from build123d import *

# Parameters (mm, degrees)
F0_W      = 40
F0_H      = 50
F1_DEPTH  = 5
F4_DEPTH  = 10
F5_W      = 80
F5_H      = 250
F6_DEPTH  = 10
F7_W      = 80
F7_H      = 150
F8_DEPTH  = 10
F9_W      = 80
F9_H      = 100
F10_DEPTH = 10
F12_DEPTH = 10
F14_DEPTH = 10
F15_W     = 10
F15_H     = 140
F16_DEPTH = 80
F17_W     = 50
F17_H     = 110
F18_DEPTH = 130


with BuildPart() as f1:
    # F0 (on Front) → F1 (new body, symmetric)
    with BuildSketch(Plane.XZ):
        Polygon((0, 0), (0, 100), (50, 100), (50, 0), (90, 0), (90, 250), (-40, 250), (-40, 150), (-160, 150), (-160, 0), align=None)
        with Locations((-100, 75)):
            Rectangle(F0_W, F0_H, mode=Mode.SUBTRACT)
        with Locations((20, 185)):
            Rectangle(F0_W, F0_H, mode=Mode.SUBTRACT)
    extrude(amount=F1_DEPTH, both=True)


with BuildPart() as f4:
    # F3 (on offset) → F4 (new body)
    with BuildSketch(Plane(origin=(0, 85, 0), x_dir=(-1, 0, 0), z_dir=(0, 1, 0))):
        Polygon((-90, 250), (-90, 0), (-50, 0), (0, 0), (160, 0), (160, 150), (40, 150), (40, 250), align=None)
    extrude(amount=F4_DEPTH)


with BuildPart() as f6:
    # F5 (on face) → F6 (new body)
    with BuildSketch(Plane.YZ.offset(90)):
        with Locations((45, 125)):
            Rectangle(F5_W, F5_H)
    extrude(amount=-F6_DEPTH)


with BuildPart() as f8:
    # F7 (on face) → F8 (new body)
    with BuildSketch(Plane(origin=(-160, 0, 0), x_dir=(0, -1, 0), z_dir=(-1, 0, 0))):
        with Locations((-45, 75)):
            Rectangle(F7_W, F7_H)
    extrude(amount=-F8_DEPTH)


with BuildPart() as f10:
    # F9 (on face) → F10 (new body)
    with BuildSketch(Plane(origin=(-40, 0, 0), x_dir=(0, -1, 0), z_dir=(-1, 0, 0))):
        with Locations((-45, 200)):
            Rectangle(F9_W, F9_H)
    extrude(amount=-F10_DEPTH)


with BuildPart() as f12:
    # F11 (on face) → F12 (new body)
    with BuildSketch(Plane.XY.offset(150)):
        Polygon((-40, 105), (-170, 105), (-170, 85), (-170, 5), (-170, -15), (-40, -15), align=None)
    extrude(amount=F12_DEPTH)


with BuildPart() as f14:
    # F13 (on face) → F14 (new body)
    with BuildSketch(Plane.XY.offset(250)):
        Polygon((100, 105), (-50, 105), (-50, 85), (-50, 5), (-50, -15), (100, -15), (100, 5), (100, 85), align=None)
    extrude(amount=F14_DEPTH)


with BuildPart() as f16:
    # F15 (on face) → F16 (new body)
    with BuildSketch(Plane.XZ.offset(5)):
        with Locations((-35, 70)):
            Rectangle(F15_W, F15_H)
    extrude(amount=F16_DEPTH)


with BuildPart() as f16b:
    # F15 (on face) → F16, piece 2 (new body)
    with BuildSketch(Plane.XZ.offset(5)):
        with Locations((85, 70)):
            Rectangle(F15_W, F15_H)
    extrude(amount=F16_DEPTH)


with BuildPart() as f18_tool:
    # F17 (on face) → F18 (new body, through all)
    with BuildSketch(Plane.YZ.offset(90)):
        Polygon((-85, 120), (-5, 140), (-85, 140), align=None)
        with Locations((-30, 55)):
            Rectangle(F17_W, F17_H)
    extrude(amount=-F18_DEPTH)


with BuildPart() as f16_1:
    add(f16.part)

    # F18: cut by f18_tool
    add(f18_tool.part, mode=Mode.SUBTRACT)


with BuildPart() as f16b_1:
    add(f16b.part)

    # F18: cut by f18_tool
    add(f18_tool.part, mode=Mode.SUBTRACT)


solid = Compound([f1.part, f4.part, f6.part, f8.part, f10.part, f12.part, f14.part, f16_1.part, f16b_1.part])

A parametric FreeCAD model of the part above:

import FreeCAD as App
import Part
import Sketcher
from FreeCAD import Vector

doc = App.newDocument("Part")
params = doc.addObject("Spreadsheet::Sheet", "Params")
for row, (alias, value) in enumerate([
    ("sketch1_width", "50 mm"),
    ("sketch1_width2", "40 mm"),
    ("sketch1_width3", "130 mm"),
    ("sketch1_width4", "120 mm"),
    ("sketch1_height", "100 mm"),
    ("pad1_length", "10 mm"),
    ("sketch2_width", "250 mm"),
    ("sketch2_width2", "120 mm"),
    ("sketch2_height", "150 mm"),
    ("pad2_length", "10 mm"),
    ("sketch3_width", "80 mm"),
    ("sketch3_height", "250 mm"),
    ("pad3_length", "10 mm"),
    ("sketch4_width", "80 mm"),
    ("sketch4_height", "150 mm"),
    ("pad4_length", "10 mm"),
    ("sketch5_width", "80 mm"),
    ("sketch5_height", "100 mm"),
    ("pad5_length", "10 mm"),
    ("sketch6_width", "130 mm"),
    ("sketch6_height", "120 mm"),
    ("pad6_length", "10 mm"),
    ("sketch7_width", "150 mm"),
    ("sketch7_height", "120 mm"),
    ("pad7_length", "10 mm"),
    ("sketch8_width", "10 mm"),
    ("sketch8_height", "140 mm"),
    ("pad8_length", "80 mm"),
    ("sketch9_width", "10 mm"),
    ("sketch9_height", "140 mm"),
    ("pad9_length", "80 mm"),
    ("sketch10_width", "80 mm"),
    ("sketch10_width2", "50 mm"),
    ("sketch10_height", "20 mm"),
    ("sketch10_height2", "110 mm"),
    ("pad10_length", "130 mm"),
], start=1):
    params.set(f"A{row}", alias)
    params.set(f"B{row}", "=" + value)
    params.setAlias(f"B{row}", alias)

body = doc.addObject("PartDesign::Body", "Body")

sketch1 = body.newObject("Sketcher::SketchObject", "Sketch")
sketch1.AttachmentSupport = (doc.getObject("XZ_Plane"), [""])
sketch1.MapMode = "FlatFace"
sketch1.addGeometry([
    Part.LineSegment(Vector(0, 0, 0), Vector(0, 100, 0)),
    Part.LineSegment(Vector(0, 100, 0), Vector(50, 100, 0)),
    Part.LineSegment(Vector(50, 100, 0), Vector(50, 0, 0)),
    Part.LineSegment(Vector(50, 0, 0), Vector(90, 0, 0)),
    Part.LineSegment(Vector(90, 0, 0), Vector(90, 250, 0)),
    Part.LineSegment(Vector(90, 250, 0), Vector(-40, 250, 0)),
    Part.LineSegment(Vector(-40, 250, 0), Vector(-40, 150, 0)),
    Part.LineSegment(Vector(-40, 150, 0), Vector(-160, 150, 0)),
    Part.LineSegment(Vector(-160, 150, 0), Vector(-160, 0, 0)),
    Part.LineSegment(Vector(-160, 0, 0), Vector(0, 0, 0)),
    Part.LineSegment(Vector(-80, 50, 0), Vector(-120, 50, 0)),
    Part.LineSegment(Vector(-120, 50, 0), Vector(-120, 100, 0)),
    Part.LineSegment(Vector(-120, 100, 0), Vector(-80, 100, 0)),
    Part.LineSegment(Vector(-80, 100, 0), Vector(-80, 50, 0)),
    Part.LineSegment(Vector(40, 160, 0), Vector(0, 160, 0)),
    Part.LineSegment(Vector(0, 160, 0), Vector(0, 210, 0)),
    Part.LineSegment(Vector(0, 210, 0), Vector(40, 210, 0)),
    Part.LineSegment(Vector(40, 210, 0), Vector(40, 160, 0)),
], False)
sketch1.addConstraint([
    Sketcher.Constraint("Coincident", 0, 2, 1, 1),
    Sketcher.Constraint("Coincident", 1, 2, 2, 1),
    Sketcher.Constraint("Coincident", 2, 2, 3, 1),
    Sketcher.Constraint("Coincident", 3, 2, 4, 1),
    Sketcher.Constraint("Coincident", 4, 2, 5, 1),
    Sketcher.Constraint("Coincident", 5, 2, 6, 1),
    Sketcher.Constraint("Coincident", 6, 2, 7, 1),
    Sketcher.Constraint("Coincident", 7, 2, 8, 1),
    Sketcher.Constraint("Coincident", 8, 2, 9, 1),
    Sketcher.Constraint("Coincident", 9, 2, 0, 1),
    Sketcher.Constraint("Coincident", 10, 2, 11, 1),
    Sketcher.Constraint("Coincident", 11, 2, 12, 1),
    Sketcher.Constraint("Coincident", 12, 2, 13, 1),
    Sketcher.Constraint("Coincident", 13, 2, 10, 1),
    Sketcher.Constraint("Coincident", 14, 2, 15, 1),
    Sketcher.Constraint("Coincident", 15, 2, 16, 1),
    Sketcher.Constraint("Coincident", 16, 2, 17, 1),
    Sketcher.Constraint("Coincident", 17, 2, 14, 1),
    Sketcher.Constraint("Vertical", 0),
    Sketcher.Constraint("Horizontal", 1),
    Sketcher.Constraint("Vertical", 2),
    Sketcher.Constraint("Horizontal", 3),
    Sketcher.Constraint("Vertical", 4),
    Sketcher.Constraint("Horizontal", 5),
    Sketcher.Constraint("Vertical", 6),
    Sketcher.Constraint("Horizontal", 7),
    Sketcher.Constraint("Vertical", 8),
    Sketcher.Constraint("Horizontal", 9),
    Sketcher.Constraint("Horizontal", 10),
    Sketcher.Constraint("Vertical", 11),
    Sketcher.Constraint("Horizontal", 12),
    Sketcher.Constraint("Vertical", 13),
    Sketcher.Constraint("Horizontal", 14),
    Sketcher.Constraint("Vertical", 15),
    Sketcher.Constraint("Horizontal", 16),
    Sketcher.Constraint("Vertical", 17),
    Sketcher.Constraint("Coincident", 9, 2, -1, 1),
    Sketcher.Constraint("PointOnObject", 2, 2, -1),
    Sketcher.Constraint("PointOnObject", 14, 2, -2),
    Sketcher.Constraint("Horizontal", 1, 2, 11, 2),
    Sketcher.Constraint("Equal", 3, 10),
    Sketcher.Constraint("Equal", 12, 14),
    Sketcher.Constraint("Equal", 2, 6),
    Sketcher.Constraint("Equal", 1, 11),
    Sketcher.Constraint("Equal", 13, 15),
    Sketcher.Constraint("DistanceX", 1, 1, 1, 2, 50.0),
    Sketcher.Constraint("DistanceX", 3, 1, 3, 2, 40.0),
    Sketcher.Constraint("DistanceX", 5, 2, 5, 1, 130.0),
    Sketcher.Constraint("DistanceX", 7, 2, 7, 1, 120.0),
    Sketcher.Constraint("DistanceY", 0, 1, 0, 2, 100.0),
    Sketcher.Constraint("DistanceY", 4, 1, 4, 2, 250.0),
    Sketcher.Constraint("DistanceX", 10, 2, -1, 1, 120.0),
    Sketcher.Constraint("DistanceY", -1, 1, 14, 2, 160.0),
])
sketch1.setExpression("Constraints[45]", "Params.sketch1_width")
sketch1.setExpression("Constraints[46]", "Params.sketch1_width2")
sketch1.setExpression("Constraints[47]", "Params.sketch1_width3")
sketch1.setExpression("Constraints[48]", "Params.sketch1_width4")
sketch1.setExpression("Constraints[49]", "Params.sketch1_height")
pad1 = body.newObject("PartDesign::Pad", "Pad")
pad1.Profile = sketch1
pad1.setExpression("Length", "Params.pad1_length")
pad1.Midplane = True
body2 = doc.addObject("PartDesign::Body", "Body001")

sketch2 = body2.newObject("Sketcher::SketchObject", "Sketch001")
sketch2.AttachmentSupport = (doc.getObject("XZ_Plane001"), [""])
sketch2.MapMode = "FlatFace"
sketch2.AttachmentOffset = App.Placement(Vector(0, 0, -85), App.Rotation())
sketch2.addGeometry([
    Part.LineSegment(Vector(90, 250, 0), Vector(90, 0, 0)),
    Part.LineSegment(Vector(90, 0, 0), Vector(-160, 0, 0)),
    Part.LineSegment(Vector(-160, 0, 0), Vector(-160, 150, 0)),
    Part.LineSegment(Vector(-160, 150, 0), Vector(-40, 150, 0)),
    Part.LineSegment(Vector(-40, 150, 0), Vector(-40, 250, 0)),
    Part.LineSegment(Vector(-40, 250, 0), Vector(90, 250, 0)),
], False)
sketch2.addConstraint([
    Sketcher.Constraint("Coincident", 0, 2, 1, 1),
    Sketcher.Constraint("Coincident", 1, 2, 2, 1),
    Sketcher.Constraint("Coincident", 2, 2, 3, 1),
    Sketcher.Constraint("Coincident", 3, 2, 4, 1),
    Sketcher.Constraint("Coincident", 4, 2, 5, 1),
    Sketcher.Constraint("Coincident", 5, 2, 0, 1),
    Sketcher.Constraint("Vertical", 0),
    Sketcher.Constraint("Horizontal", 1),
    Sketcher.Constraint("Vertical", 2),
    Sketcher.Constraint("Horizontal", 3),
    Sketcher.Constraint("Vertical", 4),
    Sketcher.Constraint("Horizontal", 5),
    Sketcher.Constraint("PointOnObject", 0, 2, -1),
    Sketcher.Constraint("Equal", 1, 0),
    Sketcher.Constraint("DistanceX", 1, 2, 1, 1, 250.0),
    Sketcher.Constraint("DistanceX", 3, 1, 3, 2, 120.0),
    Sketcher.Constraint("DistanceY", 2, 1, 2, 2, 150.0),
    Sketcher.Constraint("DistanceX", -1, 1, 0, 2, 90.0),
])
sketch2.setExpression("Constraints[14]", "Params.sketch2_width")
sketch2.setExpression("Constraints[15]", "Params.sketch2_width2")
sketch2.setExpression("Constraints[16]", "Params.sketch2_height")
pad2 = body2.newObject("PartDesign::Pad", "Pad001")
pad2.Profile = sketch2
pad2.setExpression("Length", "Params.pad2_length")
pad2.Reversed = True
body3 = doc.addObject("PartDesign::Body", "Body002")

sketch3 = body3.newObject("Sketcher::SketchObject", "Sketch002")
sketch3.AttachmentSupport = (doc.getObject("YZ_Plane002"), [""])
sketch3.MapMode = "FlatFace"
sketch3.AttachmentOffset = App.Placement(Vector(0, 0, 90), App.Rotation())
sketch3.addGeometry([
    Part.LineSegment(Vector(5, 250, 0), Vector(5, 0, 0)),
    Part.LineSegment(Vector(5, 0, 0), Vector(85, 0, 0)),
    Part.LineSegment(Vector(85, 0, 0), Vector(85, 250, 0)),
    Part.LineSegment(Vector(85, 250, 0), Vector(5, 250, 0)),
], False)
sketch3.addConstraint([
    Sketcher.Constraint("Coincident", 0, 2, 1, 1),
    Sketcher.Constraint("Coincident", 1, 2, 2, 1),
    Sketcher.Constraint("Coincident", 2, 2, 3, 1),
    Sketcher.Constraint("Coincident", 3, 2, 0, 1),
    Sketcher.Constraint("Vertical", 0),
    Sketcher.Constraint("Horizontal", 1),
    Sketcher.Constraint("Vertical", 2),
    Sketcher.Constraint("Horizontal", 3),
    Sketcher.Constraint("PointOnObject", 0, 2, -1),
    Sketcher.Constraint("DistanceX", 1, 1, 1, 2, 80.0),
    Sketcher.Constraint("DistanceY", 0, 2, 0, 1, 250.0),
    Sketcher.Constraint("DistanceX", -1, 1, 0, 2, 5.0),
])
sketch3.setExpression("Constraints[9]", "Params.sketch3_width")
sketch3.setExpression("Constraints[10]", "Params.sketch3_height")
pad3 = body3.newObject("PartDesign::Pad", "Pad002")
pad3.Profile = sketch3
pad3.setExpression("Length", "Params.pad3_length")
pad3.Reversed = True
body4 = doc.addObject("PartDesign::Body", "Body003")

sketch4 = body4.newObject("Sketcher::SketchObject", "Sketch003")
sketch4.AttachmentSupport = (doc.getObject("YZ_Plane003"), [""])
sketch4.MapMode = "FlatFace"
sketch4.AttachmentOffset = App.Placement(Vector(0, 0, -160), App.Rotation())
sketch4.addGeometry([
    Part.LineSegment(Vector(85, 150, 0), Vector(85, 0, 0)),
    Part.LineSegment(Vector(85, 0, 0), Vector(5, 0, 0)),
    Part.LineSegment(Vector(5, 0, 0), Vector(5, 150, 0)),
    Part.LineSegment(Vector(5, 150, 0), Vector(85, 150, 0)),
], False)
sketch4.addConstraint([
    Sketcher.Constraint("Coincident", 0, 2, 1, 1),
    Sketcher.Constraint("Coincident", 1, 2, 2, 1),
    Sketcher.Constraint("Coincident", 2, 2, 3, 1),
    Sketcher.Constraint("Coincident", 3, 2, 0, 1),
    Sketcher.Constraint("Vertical", 0),
    Sketcher.Constraint("Horizontal", 1),
    Sketcher.Constraint("Vertical", 2),
    Sketcher.Constraint("Horizontal", 3),
    Sketcher.Constraint("PointOnObject", 0, 2, -1),
    Sketcher.Constraint("DistanceX", 1, 2, 1, 1, 80.0),
    Sketcher.Constraint("DistanceY", 0, 2, 0, 1, 150.0),
    Sketcher.Constraint("DistanceX", -1, 1, 0, 2, 85.0),
])
sketch4.setExpression("Constraints[9]", "Params.sketch4_width")
sketch4.setExpression("Constraints[10]", "Params.sketch4_height")
pad4 = body4.newObject("PartDesign::Pad", "Pad003")
pad4.Profile = sketch4
pad4.setExpression("Length", "Params.pad4_length")
body5 = doc.addObject("PartDesign::Body", "Body004")

sketch5 = body5.newObject("Sketcher::SketchObject", "Sketch004")
sketch5.AttachmentSupport = (doc.getObject("YZ_Plane004"), [""])
sketch5.MapMode = "FlatFace"
sketch5.AttachmentOffset = App.Placement(Vector(0, 0, -40), App.Rotation())
sketch5.addGeometry([
    Part.LineSegment(Vector(85, 250, 0), Vector(85, 150, 0)),
    Part.LineSegment(Vector(85, 150, 0), Vector(5, 150, 0)),
    Part.LineSegment(Vector(5, 150, 0), Vector(5, 250, 0)),
    Part.LineSegment(Vector(5, 250, 0), Vector(85, 250, 0)),
], False)
sketch5.addConstraint([
    Sketcher.Constraint("Coincident", 0, 2, 1, 1),
    Sketcher.Constraint("Coincident", 1, 2, 2, 1),
    Sketcher.Constraint("Coincident", 2, 2, 3, 1),
    Sketcher.Constraint("Coincident", 3, 2, 0, 1),
    Sketcher.Constraint("Vertical", 0),
    Sketcher.Constraint("Horizontal", 1),
    Sketcher.Constraint("Vertical", 2),
    Sketcher.Constraint("Horizontal", 3),
    Sketcher.Constraint("DistanceX", 1, 2, 1, 1, 80.0),
    Sketcher.Constraint("DistanceY", 0, 2, 0, 1, 100.0),
    Sketcher.Constraint("DistanceX", -1, 1, 0, 2, 85.0),
    Sketcher.Constraint("DistanceY", -1, 1, 0, 2, 150.0),
])
sketch5.setExpression("Constraints[8]", "Params.sketch5_width")
sketch5.setExpression("Constraints[9]", "Params.sketch5_height")
pad5 = body5.newObject("PartDesign::Pad", "Pad004")
pad5.Profile = sketch5
pad5.setExpression("Length", "Params.pad5_length")
body6 = doc.addObject("PartDesign::Body", "Body005")

sketch6 = body6.newObject("Sketcher::SketchObject", "Sketch005")
sketch6.AttachmentSupport = (doc.getObject("XY_Plane005"), [""])
sketch6.MapMode = "FlatFace"
sketch6.AttachmentOffset = App.Placement(Vector(0, 0, 150), App.Rotation())
sketch6.addGeometry([
    Part.LineSegment(Vector(-40, 105, 0), Vector(-170, 105, 0)),
    Part.LineSegment(Vector(-170, 105, 0), Vector(-170, -15, 0)),
    Part.LineSegment(Vector(-170, -15, 0), Vector(-40, -15, 0)),
    Part.LineSegment(Vector(-40, -15, 0), Vector(-40, 105, 0)),
], False)
sketch6.addConstraint([
    Sketcher.Constraint("Coincident", 0, 2, 1, 1),
    Sketcher.Constraint("Coincident", 1, 2, 2, 1),
    Sketcher.Constraint("Coincident", 2, 2, 3, 1),
    Sketcher.Constraint("Coincident", 3, 2, 0, 1),
    Sketcher.Constraint("Horizontal", 0),
    Sketcher.Constraint("Vertical", 1),
    Sketcher.Constraint("Horizontal", 2),
    Sketcher.Constraint("Vertical", 3),
    Sketcher.Constraint("DistanceX", 0, 2, 0, 1, 130.0),
    Sketcher.Constraint("DistanceY", 1, 2, 1, 1, 120.0),
    Sketcher.Constraint("DistanceX", 0, 2, -1, 1, 170.0),
    Sketcher.Constraint("DistanceY", -1, 1, 0, 2, 105.0),
])
sketch6.setExpression("Constraints[8]", "Params.sketch6_width")
sketch6.setExpression("Constraints[9]", "Params.sketch6_height")
pad6 = body6.newObject("PartDesign::Pad", "Pad005")
pad6.Profile = sketch6
pad6.setExpression("Length", "Params.pad6_length")
body7 = doc.addObject("PartDesign::Body", "Body006")

sketch7 = body7.newObject("Sketcher::SketchObject", "Sketch006")
sketch7.AttachmentSupport = (doc.getObject("XY_Plane006"), [""])
sketch7.MapMode = "FlatFace"
sketch7.AttachmentOffset = App.Placement(Vector(0, 0, 250), App.Rotation())
sketch7.addGeometry([
    Part.LineSegment(Vector(100, 105, 0), Vector(-50, 105, 0)),
    Part.LineSegment(Vector(-50, 105, 0), Vector(-50, -15, 0)),
    Part.LineSegment(Vector(-50, -15, 0), Vector(100, -15, 0)),
    Part.LineSegment(Vector(100, -15, 0), Vector(100, 105, 0)),
], False)
sketch7.addConstraint([
    Sketcher.Constraint("Coincident", 0, 2, 1, 1),
    Sketcher.Constraint("Coincident", 1, 2, 2, 1),
    Sketcher.Constraint("Coincident", 2, 2, 3, 1),
    Sketcher.Constraint("Coincident", 3, 2, 0, 1),
    Sketcher.Constraint("Horizontal", 0),
    Sketcher.Constraint("Vertical", 1),
    Sketcher.Constraint("Horizontal", 2),
    Sketcher.Constraint("Vertical", 3),
    Sketcher.Constraint("DistanceX", 0, 2, 0, 1, 150.0),
    Sketcher.Constraint("DistanceY", 1, 2, 1, 1, 120.0),
    Sketcher.Constraint("DistanceX", 0, 2, -1, 1, 50.0),
    Sketcher.Constraint("DistanceY", -1, 1, 0, 2, 105.0),
])
sketch7.setExpression("Constraints[8]", "Params.sketch7_width")
sketch7.setExpression("Constraints[9]", "Params.sketch7_height")
pad7 = body7.newObject("PartDesign::Pad", "Pad006")
pad7.Profile = sketch7
pad7.setExpression("Length", "Params.pad7_length")
body8 = doc.addObject("PartDesign::Body", "Body007")

sketch8 = body8.newObject("Sketcher::SketchObject", "Sketch007")
sketch8.AttachmentSupport = (doc.getObject("XZ_Plane007"), [""])
sketch8.MapMode = "FlatFace"
sketch8.AttachmentOffset = App.Placement(Vector(0, 0, 5), App.Rotation())
sketch8.addGeometry([
    Part.LineSegment(Vector(-40, 140, 0), Vector(-40, 0, 0)),
    Part.LineSegment(Vector(-40, 0, 0), Vector(-30, 0, 0)),
    Part.LineSegment(Vector(-30, 0, 0), Vector(-30, 140, 0)),
    Part.LineSegment(Vector(-30, 140, 0), Vector(-40, 140, 0)),
], False)
sketch8.addConstraint([
    Sketcher.Constraint("Coincident", 0, 2, 1, 1),
    Sketcher.Constraint("Coincident", 1, 2, 2, 1),
    Sketcher.Constraint("Coincident", 2, 2, 3, 1),
    Sketcher.Constraint("Coincident", 3, 2, 0, 1),
    Sketcher.Constraint("Vertical", 0),
    Sketcher.Constraint("Horizontal", 1),
    Sketcher.Constraint("Vertical", 2),
    Sketcher.Constraint("Horizontal", 3),
    Sketcher.Constraint("PointOnObject", 0, 2, -1),
    Sketcher.Constraint("DistanceX", 1, 1, 1, 2, 10.0),
    Sketcher.Constraint("DistanceY", 0, 2, 0, 1, 140.0),
    Sketcher.Constraint("DistanceX", 0, 2, -1, 1, 40.0),
])
sketch8.setExpression("Constraints[9]", "Params.sketch8_width")
sketch8.setExpression("Constraints[10]", "Params.sketch8_height")
pad8 = body8.newObject("PartDesign::Pad", "Pad007")
pad8.Profile = sketch8
pad8.setExpression("Length", "Params.pad8_length")
body9 = doc.addObject("PartDesign::Body", "Body008")

sketch9 = body9.newObject("Sketcher::SketchObject", "Sketch008")
sketch9.AttachmentSupport = (doc.getObject("XZ_Plane008"), [""])
sketch9.MapMode = "FlatFace"
sketch9.AttachmentOffset = App.Placement(Vector(0, 0, 5), App.Rotation())
sketch9.addGeometry([
    Part.LineSegment(Vector(80, 140, 0), Vector(80, 0, 0)),
    Part.LineSegment(Vector(80, 0, 0), Vector(90, 0, 0)),
    Part.LineSegment(Vector(90, 0, 0), Vector(90, 140, 0)),
    Part.LineSegment(Vector(90, 140, 0), Vector(80, 140, 0)),
], False)
sketch9.addConstraint([
    Sketcher.Constraint("Coincident", 0, 2, 1, 1),
    Sketcher.Constraint("Coincident", 1, 2, 2, 1),
    Sketcher.Constraint("Coincident", 2, 2, 3, 1),
    Sketcher.Constraint("Coincident", 3, 2, 0, 1),
    Sketcher.Constraint("Vertical", 0),
    Sketcher.Constraint("Horizontal", 1),
    Sketcher.Constraint("Vertical", 2),
    Sketcher.Constraint("Horizontal", 3),
    Sketcher.Constraint("PointOnObject", 0, 2, -1),
    Sketcher.Constraint("DistanceX", 1, 1, 1, 2, 10.0),
    Sketcher.Constraint("DistanceY", 0, 2, 0, 1, 140.0),
    Sketcher.Constraint("DistanceX", -1, 1, 0, 2, 80.0),
])
sketch9.setExpression("Constraints[9]", "Params.sketch9_width")
sketch9.setExpression("Constraints[10]", "Params.sketch9_height")
pad9 = body9.newObject("PartDesign::Pad", "Pad008")
pad9.Profile = sketch9
pad9.setExpression("Length", "Params.pad9_length")
body10 = doc.addObject("PartDesign::Body", "Body009")
body10.AllowCompound = True

sketch10 = body10.newObject("Sketcher::SketchObject", "Sketch009")
sketch10.AttachmentSupport = (doc.getObject("YZ_Plane009"), [""])
sketch10.MapMode = "FlatFace"
sketch10.AttachmentOffset = App.Placement(Vector(0, 0, 90), App.Rotation())
sketch10.addGeometry([
    Part.LineSegment(Vector(-85, 120, 0), Vector(-5, 140, 0)),
    Part.LineSegment(Vector(-5, 140, 0), Vector(-85, 140, 0)),
    Part.LineSegment(Vector(-85, 140, 0), Vector(-85, 120, 0)),
    Part.LineSegment(Vector(-55, 110, 0), Vector(-55, 0, 0)),
    Part.LineSegment(Vector(-55, 0, 0), Vector(-5, 0, 0)),
    Part.LineSegment(Vector(-5, 0, 0), Vector(-5, 110, 0)),
    Part.LineSegment(Vector(-5, 110, 0), Vector(-55, 110, 0)),
], False)
sketch10.addConstraint([
    Sketcher.Constraint("Coincident", 0, 2, 1, 1),
    Sketcher.Constraint("Coincident", 1, 2, 2, 1),
    Sketcher.Constraint("Coincident", 2, 2, 0, 1),
    Sketcher.Constraint("Coincident", 3, 2, 4, 1),
    Sketcher.Constraint("Coincident", 4, 2, 5, 1),
    Sketcher.Constraint("Coincident", 5, 2, 6, 1),
    Sketcher.Constraint("Coincident", 6, 2, 3, 1),
    Sketcher.Constraint("Horizontal", 1),
    Sketcher.Constraint("Vertical", 2),
    Sketcher.Constraint("Vertical", 3),
    Sketcher.Constraint("Horizontal", 4),
    Sketcher.Constraint("Vertical", 5),
    Sketcher.Constraint("Horizontal", 6),
    Sketcher.Constraint("PointOnObject", 3, 2, -1),
    Sketcher.Constraint("Vertical", 0, 2, 4, 2),
    Sketcher.Constraint("DistanceX", 1, 2, 1, 1, 80.0),
    Sketcher.Constraint("DistanceX", 4, 1, 4, 2, 50.0),
    Sketcher.Constraint("DistanceY", 2, 2, 2, 1, 20.0),
    Sketcher.Constraint("DistanceY", 3, 2, 3, 1, 110.0),
    Sketcher.Constraint("DistanceX", 0, 2, -1, 1, 5.0),
    Sketcher.Constraint("DistanceY", -1, 1, 0, 2, 140.0),
])
sketch10.setExpression("Constraints[15]", "Params.sketch10_width")
sketch10.setExpression("Constraints[16]", "Params.sketch10_width2")
sketch10.setExpression("Constraints[17]", "Params.sketch10_height")
sketch10.setExpression("Constraints[18]", "Params.sketch10_height2")
pad10 = body10.newObject("PartDesign::Pad", "Pad009")
pad10.Profile = sketch10
pad10.setExpression("Length", "Params.pad10_length")
pad10.Reversed = True
doc.recompute()

body11 = doc.addObject("PartDesign::Body", "Body010")
body11.BaseFeature = body10
boolean = body8.newObject("PartDesign::Boolean", "Boolean")
boolean.Type = "Cut"
boolean.addObjects([body11])
doc.recompute()

boolean2 = body9.newObject("PartDesign::Boolean", "Boolean001")
boolean2.Type = "Cut"
boolean2.addObjects([body10])

doc.recompute()
